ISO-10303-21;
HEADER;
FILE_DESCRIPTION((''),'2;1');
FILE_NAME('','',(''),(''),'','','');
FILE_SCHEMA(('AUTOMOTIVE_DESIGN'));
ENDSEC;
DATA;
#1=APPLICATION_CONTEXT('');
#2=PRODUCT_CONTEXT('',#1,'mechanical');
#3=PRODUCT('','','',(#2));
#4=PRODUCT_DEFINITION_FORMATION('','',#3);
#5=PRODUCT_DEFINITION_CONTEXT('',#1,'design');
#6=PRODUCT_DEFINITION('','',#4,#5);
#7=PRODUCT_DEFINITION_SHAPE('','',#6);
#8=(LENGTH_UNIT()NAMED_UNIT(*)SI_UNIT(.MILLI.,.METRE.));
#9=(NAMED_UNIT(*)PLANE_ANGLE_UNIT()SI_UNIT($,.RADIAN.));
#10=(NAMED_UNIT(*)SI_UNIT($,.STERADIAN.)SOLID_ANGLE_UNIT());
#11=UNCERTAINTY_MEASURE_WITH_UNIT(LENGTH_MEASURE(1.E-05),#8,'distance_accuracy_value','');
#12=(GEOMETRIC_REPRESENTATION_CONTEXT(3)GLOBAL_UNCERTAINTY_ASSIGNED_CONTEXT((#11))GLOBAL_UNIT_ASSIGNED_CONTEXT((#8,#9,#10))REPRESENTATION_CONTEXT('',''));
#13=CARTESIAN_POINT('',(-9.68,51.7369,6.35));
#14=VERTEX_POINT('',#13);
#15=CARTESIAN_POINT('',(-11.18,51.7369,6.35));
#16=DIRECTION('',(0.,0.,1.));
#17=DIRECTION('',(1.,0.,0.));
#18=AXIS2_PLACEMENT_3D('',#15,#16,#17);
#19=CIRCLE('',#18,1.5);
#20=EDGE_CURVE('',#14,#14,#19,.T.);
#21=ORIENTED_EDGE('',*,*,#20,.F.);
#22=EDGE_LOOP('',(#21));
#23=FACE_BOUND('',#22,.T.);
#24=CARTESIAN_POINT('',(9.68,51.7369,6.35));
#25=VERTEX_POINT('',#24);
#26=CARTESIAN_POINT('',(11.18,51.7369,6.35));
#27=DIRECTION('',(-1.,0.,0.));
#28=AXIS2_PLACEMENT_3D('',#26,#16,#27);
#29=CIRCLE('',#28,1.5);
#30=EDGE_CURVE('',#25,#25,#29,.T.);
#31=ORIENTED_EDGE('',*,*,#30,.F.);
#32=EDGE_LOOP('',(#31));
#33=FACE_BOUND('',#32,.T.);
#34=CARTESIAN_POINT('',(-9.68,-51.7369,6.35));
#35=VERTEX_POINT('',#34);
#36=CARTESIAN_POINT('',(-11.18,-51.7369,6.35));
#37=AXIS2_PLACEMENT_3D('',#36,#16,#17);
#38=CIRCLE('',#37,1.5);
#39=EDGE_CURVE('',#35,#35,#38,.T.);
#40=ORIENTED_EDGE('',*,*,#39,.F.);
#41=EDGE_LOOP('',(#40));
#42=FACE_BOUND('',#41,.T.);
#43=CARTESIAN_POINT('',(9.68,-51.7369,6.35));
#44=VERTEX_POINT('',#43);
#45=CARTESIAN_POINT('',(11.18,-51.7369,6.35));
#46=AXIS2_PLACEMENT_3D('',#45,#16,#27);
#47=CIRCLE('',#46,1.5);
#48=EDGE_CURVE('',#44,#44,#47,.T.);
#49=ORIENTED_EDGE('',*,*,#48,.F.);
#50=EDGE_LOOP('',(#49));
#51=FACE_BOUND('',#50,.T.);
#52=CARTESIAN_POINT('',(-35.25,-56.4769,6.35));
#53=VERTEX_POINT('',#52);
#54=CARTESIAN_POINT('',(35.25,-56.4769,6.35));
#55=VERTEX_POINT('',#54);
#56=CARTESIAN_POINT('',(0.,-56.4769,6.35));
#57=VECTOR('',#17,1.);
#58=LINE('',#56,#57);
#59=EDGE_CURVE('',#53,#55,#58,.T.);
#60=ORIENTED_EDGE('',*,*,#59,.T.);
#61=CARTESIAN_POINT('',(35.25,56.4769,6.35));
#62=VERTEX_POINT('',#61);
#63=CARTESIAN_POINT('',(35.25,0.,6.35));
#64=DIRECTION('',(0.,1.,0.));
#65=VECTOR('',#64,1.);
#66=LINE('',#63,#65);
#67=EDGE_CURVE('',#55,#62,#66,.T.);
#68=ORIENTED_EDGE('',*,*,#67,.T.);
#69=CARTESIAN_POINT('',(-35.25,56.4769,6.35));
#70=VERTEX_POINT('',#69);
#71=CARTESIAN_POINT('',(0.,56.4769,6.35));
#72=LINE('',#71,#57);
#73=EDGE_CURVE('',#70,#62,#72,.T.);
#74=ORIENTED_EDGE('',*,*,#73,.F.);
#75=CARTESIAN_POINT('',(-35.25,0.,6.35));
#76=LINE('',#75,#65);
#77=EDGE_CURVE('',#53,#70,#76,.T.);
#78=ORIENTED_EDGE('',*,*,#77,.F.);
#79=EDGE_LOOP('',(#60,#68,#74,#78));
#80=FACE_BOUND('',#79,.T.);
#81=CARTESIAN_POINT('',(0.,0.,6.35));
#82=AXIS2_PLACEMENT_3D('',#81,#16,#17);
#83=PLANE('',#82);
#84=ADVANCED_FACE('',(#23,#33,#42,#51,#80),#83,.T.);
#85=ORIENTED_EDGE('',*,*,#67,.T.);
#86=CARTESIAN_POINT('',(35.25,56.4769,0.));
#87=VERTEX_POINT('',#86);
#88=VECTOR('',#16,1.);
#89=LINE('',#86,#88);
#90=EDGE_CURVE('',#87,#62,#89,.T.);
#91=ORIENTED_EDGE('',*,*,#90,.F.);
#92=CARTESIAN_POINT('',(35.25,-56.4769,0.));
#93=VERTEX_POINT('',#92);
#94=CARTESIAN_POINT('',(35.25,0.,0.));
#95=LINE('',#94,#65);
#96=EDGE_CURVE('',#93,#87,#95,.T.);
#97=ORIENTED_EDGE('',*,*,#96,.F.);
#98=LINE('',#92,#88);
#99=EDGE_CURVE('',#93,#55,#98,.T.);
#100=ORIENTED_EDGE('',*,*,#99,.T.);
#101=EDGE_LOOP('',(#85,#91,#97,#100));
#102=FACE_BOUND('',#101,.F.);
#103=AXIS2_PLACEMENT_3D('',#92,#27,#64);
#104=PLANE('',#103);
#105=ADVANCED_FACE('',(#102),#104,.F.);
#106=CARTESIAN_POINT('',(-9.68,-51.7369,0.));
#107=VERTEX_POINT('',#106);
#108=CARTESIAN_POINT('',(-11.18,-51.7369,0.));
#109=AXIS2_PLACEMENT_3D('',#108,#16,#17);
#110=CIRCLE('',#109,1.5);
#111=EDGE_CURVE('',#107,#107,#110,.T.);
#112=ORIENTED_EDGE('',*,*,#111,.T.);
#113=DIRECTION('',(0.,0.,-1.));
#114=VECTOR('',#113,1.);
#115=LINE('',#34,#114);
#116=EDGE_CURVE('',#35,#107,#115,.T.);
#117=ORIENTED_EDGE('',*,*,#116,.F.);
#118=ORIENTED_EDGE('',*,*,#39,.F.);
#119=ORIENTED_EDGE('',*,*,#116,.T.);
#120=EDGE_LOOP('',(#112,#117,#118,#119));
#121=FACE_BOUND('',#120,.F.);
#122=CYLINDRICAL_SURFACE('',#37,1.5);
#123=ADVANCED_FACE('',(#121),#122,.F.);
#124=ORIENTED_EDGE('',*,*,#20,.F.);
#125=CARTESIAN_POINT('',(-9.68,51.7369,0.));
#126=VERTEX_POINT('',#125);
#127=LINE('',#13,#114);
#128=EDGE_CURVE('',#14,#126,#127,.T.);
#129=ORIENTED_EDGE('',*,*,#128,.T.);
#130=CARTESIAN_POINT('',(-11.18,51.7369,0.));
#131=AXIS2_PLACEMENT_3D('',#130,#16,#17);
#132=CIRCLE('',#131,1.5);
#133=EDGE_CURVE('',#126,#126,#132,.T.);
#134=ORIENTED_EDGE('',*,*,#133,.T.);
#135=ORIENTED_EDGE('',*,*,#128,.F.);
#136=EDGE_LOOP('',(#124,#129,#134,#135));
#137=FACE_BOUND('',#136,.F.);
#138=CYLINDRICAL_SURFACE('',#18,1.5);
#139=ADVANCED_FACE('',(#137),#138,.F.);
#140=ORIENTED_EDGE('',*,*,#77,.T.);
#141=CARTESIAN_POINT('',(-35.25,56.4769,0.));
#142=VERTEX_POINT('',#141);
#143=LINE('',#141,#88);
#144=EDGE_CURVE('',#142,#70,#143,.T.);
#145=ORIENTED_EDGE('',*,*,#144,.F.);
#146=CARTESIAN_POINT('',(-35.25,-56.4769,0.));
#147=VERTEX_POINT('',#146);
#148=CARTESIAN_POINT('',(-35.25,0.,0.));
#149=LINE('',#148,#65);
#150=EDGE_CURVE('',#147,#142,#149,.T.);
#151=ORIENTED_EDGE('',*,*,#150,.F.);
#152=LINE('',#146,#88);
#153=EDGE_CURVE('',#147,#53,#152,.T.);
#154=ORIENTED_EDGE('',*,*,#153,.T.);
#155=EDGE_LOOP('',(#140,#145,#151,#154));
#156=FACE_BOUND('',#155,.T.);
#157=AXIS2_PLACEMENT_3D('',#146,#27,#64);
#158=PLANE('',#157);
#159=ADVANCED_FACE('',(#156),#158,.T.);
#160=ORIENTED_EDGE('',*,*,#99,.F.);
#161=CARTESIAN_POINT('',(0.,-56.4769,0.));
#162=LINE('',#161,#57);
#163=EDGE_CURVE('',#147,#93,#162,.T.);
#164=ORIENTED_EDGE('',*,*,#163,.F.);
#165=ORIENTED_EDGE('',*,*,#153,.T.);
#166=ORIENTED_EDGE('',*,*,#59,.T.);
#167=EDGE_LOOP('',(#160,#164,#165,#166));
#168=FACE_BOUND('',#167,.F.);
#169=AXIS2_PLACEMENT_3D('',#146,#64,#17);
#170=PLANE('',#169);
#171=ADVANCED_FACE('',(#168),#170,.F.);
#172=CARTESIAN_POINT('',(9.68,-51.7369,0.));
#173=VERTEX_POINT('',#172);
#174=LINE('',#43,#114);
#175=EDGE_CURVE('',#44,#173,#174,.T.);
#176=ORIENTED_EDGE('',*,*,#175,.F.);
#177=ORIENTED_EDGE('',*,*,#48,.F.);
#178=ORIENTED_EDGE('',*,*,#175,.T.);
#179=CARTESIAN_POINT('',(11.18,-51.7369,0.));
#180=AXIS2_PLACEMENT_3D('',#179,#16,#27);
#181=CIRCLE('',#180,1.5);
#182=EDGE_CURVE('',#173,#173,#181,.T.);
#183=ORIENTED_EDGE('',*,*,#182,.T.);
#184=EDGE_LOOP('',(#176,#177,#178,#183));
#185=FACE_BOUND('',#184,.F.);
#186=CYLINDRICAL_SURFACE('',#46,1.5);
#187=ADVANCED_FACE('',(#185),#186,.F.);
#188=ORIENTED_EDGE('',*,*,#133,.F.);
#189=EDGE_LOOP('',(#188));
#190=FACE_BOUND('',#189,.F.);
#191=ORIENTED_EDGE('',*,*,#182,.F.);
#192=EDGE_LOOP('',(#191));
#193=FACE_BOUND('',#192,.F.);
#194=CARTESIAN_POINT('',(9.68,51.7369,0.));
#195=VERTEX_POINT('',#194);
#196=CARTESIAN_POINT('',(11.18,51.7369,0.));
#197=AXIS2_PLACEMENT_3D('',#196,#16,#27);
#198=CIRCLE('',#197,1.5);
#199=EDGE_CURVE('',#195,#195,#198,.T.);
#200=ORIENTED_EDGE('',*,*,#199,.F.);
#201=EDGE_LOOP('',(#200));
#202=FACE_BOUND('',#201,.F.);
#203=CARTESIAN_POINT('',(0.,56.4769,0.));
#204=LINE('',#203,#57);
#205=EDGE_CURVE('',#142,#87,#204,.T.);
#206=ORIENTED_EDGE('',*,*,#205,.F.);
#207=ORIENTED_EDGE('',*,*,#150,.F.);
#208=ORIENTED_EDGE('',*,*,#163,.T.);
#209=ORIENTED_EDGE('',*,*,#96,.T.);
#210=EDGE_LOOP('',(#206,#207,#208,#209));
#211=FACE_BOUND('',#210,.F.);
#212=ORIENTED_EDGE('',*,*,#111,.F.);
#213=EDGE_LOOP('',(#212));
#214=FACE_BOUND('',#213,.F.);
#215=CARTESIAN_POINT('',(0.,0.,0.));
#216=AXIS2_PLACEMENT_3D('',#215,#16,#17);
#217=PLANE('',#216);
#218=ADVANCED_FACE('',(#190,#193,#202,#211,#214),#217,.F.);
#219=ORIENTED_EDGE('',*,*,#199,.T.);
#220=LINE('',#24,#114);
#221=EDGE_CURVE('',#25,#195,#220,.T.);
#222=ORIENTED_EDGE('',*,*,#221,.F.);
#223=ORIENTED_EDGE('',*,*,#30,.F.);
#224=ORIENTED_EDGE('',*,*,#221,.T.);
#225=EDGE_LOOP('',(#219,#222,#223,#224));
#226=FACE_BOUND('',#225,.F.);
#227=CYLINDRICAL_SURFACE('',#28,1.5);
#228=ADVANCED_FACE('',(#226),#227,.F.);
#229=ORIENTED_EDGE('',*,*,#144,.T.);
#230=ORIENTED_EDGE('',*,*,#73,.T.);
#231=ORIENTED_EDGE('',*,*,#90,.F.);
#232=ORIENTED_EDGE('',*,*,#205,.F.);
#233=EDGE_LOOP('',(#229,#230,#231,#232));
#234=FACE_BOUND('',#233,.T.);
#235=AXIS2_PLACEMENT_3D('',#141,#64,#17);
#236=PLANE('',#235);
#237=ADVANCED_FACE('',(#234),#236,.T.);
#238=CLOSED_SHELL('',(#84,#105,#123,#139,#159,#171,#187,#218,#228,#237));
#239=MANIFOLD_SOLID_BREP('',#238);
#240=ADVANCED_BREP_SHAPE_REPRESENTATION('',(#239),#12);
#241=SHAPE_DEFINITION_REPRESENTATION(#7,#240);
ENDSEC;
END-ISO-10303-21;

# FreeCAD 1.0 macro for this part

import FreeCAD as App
import Part
import Sketcher

doc = App.newDocument("Part")
body = doc.addObject("PartDesign::Body", "Body")

# Sketch on XY plane
sketch1 = doc.addObject("Sketcher::SketchObject", "Sketch")
body.addObject(sketch1)
sketch1.AttachmentSupport = (doc.XY_Plane, [""])
sketch1.MapMode = "FlatFace"
sketch1.addGeometry(Part.LineSegment(App.Vector(-35, 56, 0), App.Vector(-35, -56, 0)), False)
sketch1.addGeometry(Part.LineSegment(App.Vector(-35, -56, 0), App.Vector(35, -56, 0)), False)
sketch1.addGeometry(Part.LineSegment(App.Vector(35, -56, 0), App.Vector(35, 56, 0)), False)
sketch1.addGeometry(Part.LineSegment(App.Vector(35, 56, 0), App.Vector(-35, 56, 0)), False)
sketch1.addConstraint(Sketcher.Constraint("Coincident", 0, 2, 1, 1))
sketch1.addConstraint(Sketcher.Constraint("Coincident", 1, 2, 2, 1))
sketch1.addConstraint(Sketcher.Constraint("Coincident", 2, 2, 3, 1))
sketch1.addConstraint(Sketcher.Constraint("Coincident", 3, 2, 0, 1))
sketch1.addConstraint(Sketcher.Constraint("Vertical", 0))
sketch1.addConstraint(Sketcher.Constraint("Horizontal", 1))
sketch1.addConstraint(Sketcher.Constraint("Vertical", 2))
sketch1.addConstraint(Sketcher.Constraint("Horizontal", 3))
sketch1.addConstraint(Sketcher.Constraint("Symmetric", 0, 2, 2, 2, -1, 1))
sketch1.addConstraint(Sketcher.Constraint("DistanceX", 1, 1, 1, 2, 70.5))
sketch1.addConstraint(Sketcher.Constraint("DistanceY", 0, 2, 0, 1, 112.9538))
pad1 = doc.addObject("PartDesign::Pad", "Pad")
body.addObject(pad1)
pad1.Profile = sketch1
pad1.Length = 6.35

# Sketch on XY plane
sketch2 = doc.addObject("Sketcher::SketchObject", "Sketch001")
body.addObject(sketch2)
sketch2.AttachmentSupport = (doc.XY_Plane, [""])
sketch2.MapMode = "FlatFace"
sketch2.AttachmentOffset = App.Placement(App.Vector(0, 0, 6.35), App.Rotation())
sketch2.addGeometry(Part.Circle(App.Vector(11.2, -51.7, 0), App.Vector(0, 0, 1), 1.5), False)
sketch2.addGeometry(Part.Circle(App.Vector(-11.2, -51.7, 0), App.Vector(0, 0, 1), 1.5), False)
sketch2.addGeometry(Part.Circle(App.Vector(11.2, 51.7, 0), App.Vector(0, 0, 1), 1.5), False)
sketch2.addGeometry(Part.Circle(App.Vector(-11.2, 51.7, 0), App.Vector(0, 0, 1), 1.5), False)
sketch2.addConstraint(Sketcher.Constraint("Equal", 0, 1))
sketch2.addConstraint(Sketcher.Constraint("Equal", 1, 2))
sketch2.addConstraint(Sketcher.Constraint("Equal", 2, 3))
sketch2.addConstraint(Sketcher.Constraint("Symmetric", 1, 3, 2, 3, -1, 1))
sketch2.addConstraint(Sketcher.Constraint("Symmetric", 0, 3, 3, 3, -1, 1))
sketch2.addConstraint(Sketcher.Constraint("Symmetric", 0, 3, 1, 3, -2))
sketch2.addConstraint(Sketcher.Constraint("Diameter", 0, 3.0))
sketch2.addConstraint(Sketcher.Constraint("DistanceX", -1, 1, 0, 3, 11.18))
sketch2.addConstraint(Sketcher.Constraint("DistanceY", 0, 3, -1, 1, 51.7369))
pocket1 = doc.addObject("PartDesign::Pocket", "Pocket")
body.addObject(pocket1)
pocket1.Profile = sketch2
pocket1.Type = "ThroughAll"

doc.recompute()
